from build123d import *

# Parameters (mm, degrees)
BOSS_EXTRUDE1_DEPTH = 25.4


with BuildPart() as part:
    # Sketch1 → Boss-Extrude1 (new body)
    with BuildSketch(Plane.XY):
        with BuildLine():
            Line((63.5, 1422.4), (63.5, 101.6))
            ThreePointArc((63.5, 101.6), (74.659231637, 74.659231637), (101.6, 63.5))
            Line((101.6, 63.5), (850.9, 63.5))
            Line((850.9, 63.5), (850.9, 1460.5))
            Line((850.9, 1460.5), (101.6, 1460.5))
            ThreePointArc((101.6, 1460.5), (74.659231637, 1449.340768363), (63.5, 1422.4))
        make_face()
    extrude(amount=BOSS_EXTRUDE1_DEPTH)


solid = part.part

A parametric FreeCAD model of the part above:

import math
import FreeCAD as App
import Part
import Sketcher
Q = App.Units.Quantity

doc = App.newDocument("Part")
body = doc.addObject("PartDesign::Body", "Body")

# Sketch on XY plane
sketch1 = body.newObject("Sketcher::SketchObject", "Sketch")
sketch1.AttachmentSupport = (doc.getObject("XY_Plane"), [""])
sketch1.MapMode = "FlatFace"
sketch1.addGeometry([
    Part.LineSegment(App.Vector(63.5, 1422.4, 0), App.Vector(63.5, 101.6, 0)),  # 0
    Part.ArcOfCircle(Part.Circle(App.Vector(101.6, 101.6, 0), App.Vector(0, 0, 1), 38.1), math.radians(-180), math.radians(-90)),  # 1
    Part.LineSegment(App.Vector(101.6, 63.5, 0), App.Vector(850.9, 63.5, 0)),  # 2
    Part.LineSegment(App.Vector(850.9, 63.5, 0), App.Vector(850.9, 1460.5, 0)),  # 3
    Part.LineSegment(App.Vector(850.9, 1460.5, 0), App.Vector(101.6, 1460.5, 0)),  # 4
    Part.ArcOfCircle(Part.Circle(App.Vector(101.6, 1422.4, 0), App.Vector(0, 0, 1), 38.1), math.radians(90), math.radians(180)),  # 5
], False)
sketch1.addConstraint([
    Sketcher.Constraint("Tangent", 0, 2, 1, 1),
    Sketcher.Constraint("Tangent", 1, 2, 2, 1),
    Sketcher.Constraint("Coincident", 2, 2, 3, 1),
    Sketcher.Constraint("Coincident", 3, 2, 4, 1),
    Sketcher.Constraint("Tangent", 4, 2, 5, 1),
    Sketcher.Constraint("Tangent", 5, 2, 0, 1),
    Sketcher.Constraint("Vertical", 0),
    Sketcher.Constraint("Horizontal", 2),
    Sketcher.Constraint("Vertical", 3),
    Sketcher.Constraint("Horizontal", 4),
    Sketcher.Constraint("Equal", 1, 5),
    Sketcher.Constraint("Radius", 1, Q("1.5 in")),
    Sketcher.Constraint("DistanceY", 0, 2, 0, 1, Q("52 in")),
    Sketcher.Constraint("DistanceX", 2, 1, 2, 2, Q("29.5 in")),
    Sketcher.Constraint("DistanceX", -1, 1, 1, 3, Q("4 in")),
    Sketcher.Constraint("DistanceY", -1, 1, 1, 3, Q("4 in")),
])
pad1 = body.newObject("PartDesign::Pad", "Pad")
pad1.Profile = sketch1
pad1.Length = Q("1 in")

doc.recompute()
